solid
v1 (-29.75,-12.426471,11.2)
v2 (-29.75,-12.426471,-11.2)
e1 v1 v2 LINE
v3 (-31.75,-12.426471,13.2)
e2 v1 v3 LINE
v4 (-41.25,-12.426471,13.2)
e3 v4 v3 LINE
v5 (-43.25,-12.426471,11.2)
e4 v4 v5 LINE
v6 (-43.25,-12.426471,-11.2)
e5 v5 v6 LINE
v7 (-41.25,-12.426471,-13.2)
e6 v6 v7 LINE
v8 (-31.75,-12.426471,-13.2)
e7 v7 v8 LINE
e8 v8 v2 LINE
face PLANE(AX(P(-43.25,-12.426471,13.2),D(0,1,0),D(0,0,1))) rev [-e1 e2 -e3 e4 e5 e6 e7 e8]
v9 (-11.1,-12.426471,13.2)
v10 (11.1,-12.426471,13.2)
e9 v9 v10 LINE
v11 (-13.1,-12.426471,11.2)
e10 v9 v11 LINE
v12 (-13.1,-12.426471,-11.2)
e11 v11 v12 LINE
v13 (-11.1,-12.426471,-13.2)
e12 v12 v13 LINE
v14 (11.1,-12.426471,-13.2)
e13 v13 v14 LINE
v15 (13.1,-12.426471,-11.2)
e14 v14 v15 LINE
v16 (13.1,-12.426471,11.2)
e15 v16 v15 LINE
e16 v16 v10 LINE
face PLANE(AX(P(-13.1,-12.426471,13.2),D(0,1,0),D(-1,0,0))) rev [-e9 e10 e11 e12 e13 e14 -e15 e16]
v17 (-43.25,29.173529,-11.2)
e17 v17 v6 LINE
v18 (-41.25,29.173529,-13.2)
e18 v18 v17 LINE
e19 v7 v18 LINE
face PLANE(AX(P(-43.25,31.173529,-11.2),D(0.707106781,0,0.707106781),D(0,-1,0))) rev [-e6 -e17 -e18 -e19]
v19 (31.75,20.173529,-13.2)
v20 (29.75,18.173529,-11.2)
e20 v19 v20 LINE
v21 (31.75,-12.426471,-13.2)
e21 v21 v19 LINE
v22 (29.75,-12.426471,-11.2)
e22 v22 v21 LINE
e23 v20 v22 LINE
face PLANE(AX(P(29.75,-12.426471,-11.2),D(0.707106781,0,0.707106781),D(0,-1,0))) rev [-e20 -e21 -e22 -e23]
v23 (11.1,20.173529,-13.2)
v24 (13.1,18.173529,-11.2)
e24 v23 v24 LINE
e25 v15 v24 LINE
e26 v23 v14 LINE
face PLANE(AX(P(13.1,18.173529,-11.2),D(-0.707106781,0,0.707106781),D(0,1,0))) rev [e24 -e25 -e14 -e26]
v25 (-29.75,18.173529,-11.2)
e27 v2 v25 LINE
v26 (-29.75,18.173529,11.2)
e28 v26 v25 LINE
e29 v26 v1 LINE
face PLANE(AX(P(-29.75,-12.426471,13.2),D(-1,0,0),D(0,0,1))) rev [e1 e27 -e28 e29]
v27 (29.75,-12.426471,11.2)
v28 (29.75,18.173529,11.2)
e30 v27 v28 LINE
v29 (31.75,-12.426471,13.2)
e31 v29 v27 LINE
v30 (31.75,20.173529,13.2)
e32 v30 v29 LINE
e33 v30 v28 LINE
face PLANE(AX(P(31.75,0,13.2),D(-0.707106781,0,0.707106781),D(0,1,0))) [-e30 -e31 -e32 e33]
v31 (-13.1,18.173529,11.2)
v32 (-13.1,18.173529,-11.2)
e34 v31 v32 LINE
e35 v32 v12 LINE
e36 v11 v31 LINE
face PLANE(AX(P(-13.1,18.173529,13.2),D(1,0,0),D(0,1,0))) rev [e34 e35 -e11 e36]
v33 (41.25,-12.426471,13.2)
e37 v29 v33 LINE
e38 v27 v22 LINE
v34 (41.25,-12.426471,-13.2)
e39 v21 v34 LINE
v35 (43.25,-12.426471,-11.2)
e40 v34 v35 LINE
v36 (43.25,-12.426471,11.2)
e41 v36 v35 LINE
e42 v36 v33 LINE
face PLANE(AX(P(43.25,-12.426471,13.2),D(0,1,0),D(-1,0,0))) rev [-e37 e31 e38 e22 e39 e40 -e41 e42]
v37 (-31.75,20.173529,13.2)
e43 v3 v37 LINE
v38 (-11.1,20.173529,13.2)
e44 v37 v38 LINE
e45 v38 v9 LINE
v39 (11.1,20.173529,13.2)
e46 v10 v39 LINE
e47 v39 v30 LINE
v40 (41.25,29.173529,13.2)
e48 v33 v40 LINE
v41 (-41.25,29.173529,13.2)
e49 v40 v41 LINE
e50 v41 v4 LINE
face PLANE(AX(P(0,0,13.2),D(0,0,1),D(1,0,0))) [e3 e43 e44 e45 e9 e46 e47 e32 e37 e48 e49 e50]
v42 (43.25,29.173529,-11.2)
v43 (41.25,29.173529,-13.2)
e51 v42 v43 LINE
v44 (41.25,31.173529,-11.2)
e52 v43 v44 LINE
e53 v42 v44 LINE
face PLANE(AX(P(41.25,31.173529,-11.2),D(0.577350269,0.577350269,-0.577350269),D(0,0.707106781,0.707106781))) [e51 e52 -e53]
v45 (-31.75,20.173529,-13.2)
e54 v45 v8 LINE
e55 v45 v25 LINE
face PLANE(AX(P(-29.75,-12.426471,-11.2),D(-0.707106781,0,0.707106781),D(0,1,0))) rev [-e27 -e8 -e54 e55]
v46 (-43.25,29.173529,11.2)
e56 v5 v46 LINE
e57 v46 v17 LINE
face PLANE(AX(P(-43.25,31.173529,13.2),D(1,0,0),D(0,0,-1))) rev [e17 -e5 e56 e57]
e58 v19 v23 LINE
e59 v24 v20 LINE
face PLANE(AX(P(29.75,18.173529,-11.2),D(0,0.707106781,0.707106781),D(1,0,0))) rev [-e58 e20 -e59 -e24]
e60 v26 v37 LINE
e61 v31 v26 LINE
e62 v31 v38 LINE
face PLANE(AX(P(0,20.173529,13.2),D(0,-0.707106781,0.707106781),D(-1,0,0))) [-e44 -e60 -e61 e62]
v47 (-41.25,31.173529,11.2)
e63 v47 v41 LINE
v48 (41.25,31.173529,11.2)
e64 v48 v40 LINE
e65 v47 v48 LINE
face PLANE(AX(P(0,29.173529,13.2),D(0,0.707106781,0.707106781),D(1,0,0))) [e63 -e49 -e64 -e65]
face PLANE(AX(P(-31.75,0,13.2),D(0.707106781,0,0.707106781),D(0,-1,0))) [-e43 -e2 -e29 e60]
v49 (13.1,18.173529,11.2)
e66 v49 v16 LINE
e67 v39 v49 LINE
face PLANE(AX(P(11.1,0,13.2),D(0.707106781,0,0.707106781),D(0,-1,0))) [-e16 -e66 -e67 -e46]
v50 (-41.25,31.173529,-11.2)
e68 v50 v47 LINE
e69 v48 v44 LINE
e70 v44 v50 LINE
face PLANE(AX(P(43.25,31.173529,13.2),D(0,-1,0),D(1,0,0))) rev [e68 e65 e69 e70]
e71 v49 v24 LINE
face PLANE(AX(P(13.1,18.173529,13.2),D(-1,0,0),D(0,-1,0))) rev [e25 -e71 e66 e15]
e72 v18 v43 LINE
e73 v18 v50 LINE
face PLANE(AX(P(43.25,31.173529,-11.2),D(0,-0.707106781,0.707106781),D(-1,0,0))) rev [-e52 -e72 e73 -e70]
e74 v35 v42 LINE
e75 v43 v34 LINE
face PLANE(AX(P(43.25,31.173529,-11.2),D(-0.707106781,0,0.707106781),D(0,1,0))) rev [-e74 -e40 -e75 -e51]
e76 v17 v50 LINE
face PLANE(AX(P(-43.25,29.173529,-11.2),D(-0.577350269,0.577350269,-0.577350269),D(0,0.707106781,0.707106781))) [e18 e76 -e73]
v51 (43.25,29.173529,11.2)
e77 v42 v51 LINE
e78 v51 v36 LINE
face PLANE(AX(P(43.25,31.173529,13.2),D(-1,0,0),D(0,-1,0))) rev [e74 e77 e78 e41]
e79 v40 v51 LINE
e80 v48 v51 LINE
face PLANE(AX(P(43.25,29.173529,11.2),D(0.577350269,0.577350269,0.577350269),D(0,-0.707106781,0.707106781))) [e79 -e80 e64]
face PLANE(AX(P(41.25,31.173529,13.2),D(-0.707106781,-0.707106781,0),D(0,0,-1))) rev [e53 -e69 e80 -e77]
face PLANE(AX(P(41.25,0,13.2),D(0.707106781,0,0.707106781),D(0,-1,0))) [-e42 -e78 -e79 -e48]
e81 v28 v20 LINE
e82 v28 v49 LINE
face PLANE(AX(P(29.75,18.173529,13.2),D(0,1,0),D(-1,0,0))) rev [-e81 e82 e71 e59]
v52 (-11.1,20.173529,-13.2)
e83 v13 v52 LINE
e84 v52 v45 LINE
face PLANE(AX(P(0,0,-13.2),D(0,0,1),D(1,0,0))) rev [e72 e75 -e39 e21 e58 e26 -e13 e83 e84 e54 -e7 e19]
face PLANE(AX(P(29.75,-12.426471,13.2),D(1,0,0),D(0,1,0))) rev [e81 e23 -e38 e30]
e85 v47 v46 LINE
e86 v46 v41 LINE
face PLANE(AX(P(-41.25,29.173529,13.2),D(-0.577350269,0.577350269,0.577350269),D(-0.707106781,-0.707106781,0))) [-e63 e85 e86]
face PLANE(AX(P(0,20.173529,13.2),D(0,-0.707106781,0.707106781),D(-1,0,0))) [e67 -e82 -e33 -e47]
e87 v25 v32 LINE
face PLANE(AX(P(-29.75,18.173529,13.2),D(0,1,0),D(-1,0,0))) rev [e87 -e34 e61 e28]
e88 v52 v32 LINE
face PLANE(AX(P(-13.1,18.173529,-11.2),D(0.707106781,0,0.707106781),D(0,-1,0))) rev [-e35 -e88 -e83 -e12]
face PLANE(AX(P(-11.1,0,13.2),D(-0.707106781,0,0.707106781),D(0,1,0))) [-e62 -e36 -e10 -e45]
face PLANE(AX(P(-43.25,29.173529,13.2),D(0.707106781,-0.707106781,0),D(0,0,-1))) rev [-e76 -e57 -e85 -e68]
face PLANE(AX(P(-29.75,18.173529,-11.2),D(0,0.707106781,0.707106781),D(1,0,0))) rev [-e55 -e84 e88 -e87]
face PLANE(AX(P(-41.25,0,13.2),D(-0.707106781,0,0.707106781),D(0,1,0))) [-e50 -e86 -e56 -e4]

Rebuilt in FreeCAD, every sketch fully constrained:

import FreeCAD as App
import Part
import Sketcher

V = App.Vector
Q = App.Units.Quantity


def edges_at(feature, points):
    """Names of the edges that pass closest to the given points."""
    edges = feature.Shape.Edges
    near = lambda p: min(range(len(edges)), key=lambda i: edges[i].distToShape(Part.Vertex(*p))[0])
    return sorted({f"Edge{near(p) + 1}" for p in points})


def add_polygon(sketch, points):
    """Adds a closed chain of lines whose ends are joined by coincident constraints."""
    first, n = sketch.GeometryCount, len(points)
    for a, b in zip(points, points[1:] + points[:1]):
        sketch.addGeometry(Part.LineSegment(App.Vector(*a, 0), App.Vector(*b, 0)), False)
    for i in range(n):
        sketch.addConstraint(Sketcher.Constraint("Coincident", first + i, 2, first + (i + 1) % n, 1))

doc = App.newDocument("Part")
body = doc.addObject("PartDesign::Body", "Body")

# Sketch on XY plane
sketch1 = body.newObject("Sketcher::SketchObject", "Sketch")
sketch1.AttachmentSupport = (doc.getObject("XY_Plane"), [""])
sketch1.MapMode = "FlatFace"
add_polygon(sketch1, [(43.25, 31.173529), (-43.25, 31.173529), (-43.25, -12.426471), (-29.75, -12.426471), (-29.75, 18.173529), (-13.1, 18.173529), (-13.1, -12.426471), (13.1, -12.426471), (13.1, 18.173529), (29.75, 18.173529), (29.75, -12.426471), (43.25, -12.426471)])  # lines 0-11
sketch1.addConstraint(Sketcher.Constraint("Horizontal", 0))
sketch1.addConstraint(Sketcher.Constraint("Vertical", 1))
sketch1.addConstraint(Sketcher.Constraint("Horizontal", 2))
sketch1.addConstraint(Sketcher.Constraint("Vertical", 3))
sketch1.addConstraint(Sketcher.Constraint("Horizontal", 4))
sketch1.addConstraint(Sketcher.Constraint("Vertical", 5))
sketch1.addConstraint(Sketcher.Constraint("Horizontal", 6))
sketch1.addConstraint(Sketcher.Constraint("Vertical", 7))
sketch1.addConstraint(Sketcher.Constraint("Horizontal", 8))
sketch1.addConstraint(Sketcher.Constraint("Vertical", 9))
sketch1.addConstraint(Sketcher.Constraint("Horizontal", 10))
sketch1.addConstraint(Sketcher.Constraint("Vertical", 11))
sketch1.addConstraint(Sketcher.Constraint("Symmetric", 4, 2, 7, 2, -2))
sketch1.addConstraint(Sketcher.Constraint("Symmetric", 2, 2, 9, 2, -2))
sketch1.addConstraint(Sketcher.Constraint("Horizontal", 2, 2, 5, 2))
sketch1.addConstraint(Sketcher.Constraint("Equal", 2, 10))
sketch1.addConstraint(Sketcher.Constraint("DistanceX", 0, 2, 0, 1, Q("86.5 mm")))
sketch1.addConstraint(Sketcher.Constraint("DistanceX", 2, 1, 2, 2, Q("13.5 mm")))
sketch1.addConstraint(Sketcher.Constraint("DistanceX", 6, 1, 6, 2, Q("26.2 mm")))
sketch1.addConstraint(Sketcher.Constraint("DistanceY", 1, 2, 1, 1, Q("43.6 mm")))
sketch1.addConstraint(Sketcher.Constraint("DistanceY", 3, 1, 3, 2, Q("30.6 mm")))
sketch1.addConstraint(Sketcher.Constraint("DistanceY", -1, 1, 0, 2, Q("31.173529 mm")))
pad1 = body.newObject("PartDesign::Pad", "Pad")
pad1.Profile = sketch1
pad1.Length = 26.4
pad1.Midplane = True
doc.recompute()

chamfer = body.newObject("PartDesign::Chamfer", "Chamfer")
chamfer.Base = (pad1, edges_at(pad1, [
    (13.1, 2.874, -13.2),
    (-13.1, 2.874, -13.2),
    (-21.425, 18.174, -13.2),
    (-29.75, 2.874, -13.2),
    (-43.25, 9.374, -13.2),
    (0, 31.174, -13.2),
    (43.25, 9.374, -13.2),
    (29.75, 2.874, -13.2),
    (21.425, 18.174, -13.2),
    (43.25, 9.374, 13.2),
    (0, 31.174, 13.2),
    (-43.25, 31.174, 0),
    (43.25, 31.174, 0),
    (-43.25, 9.374, 13.2),
    (-29.75, 2.874, 13.2),
    (-21.425, 18.174, 13.2),
    (-13.1, 2.874, 13.2),
    (13.1, 2.874, 13.2),
    (21.425, 18.174, 13.2),
    (29.75, 2.874, 13.2),
]))
chamfer.Size = 2

doc.recompute()
